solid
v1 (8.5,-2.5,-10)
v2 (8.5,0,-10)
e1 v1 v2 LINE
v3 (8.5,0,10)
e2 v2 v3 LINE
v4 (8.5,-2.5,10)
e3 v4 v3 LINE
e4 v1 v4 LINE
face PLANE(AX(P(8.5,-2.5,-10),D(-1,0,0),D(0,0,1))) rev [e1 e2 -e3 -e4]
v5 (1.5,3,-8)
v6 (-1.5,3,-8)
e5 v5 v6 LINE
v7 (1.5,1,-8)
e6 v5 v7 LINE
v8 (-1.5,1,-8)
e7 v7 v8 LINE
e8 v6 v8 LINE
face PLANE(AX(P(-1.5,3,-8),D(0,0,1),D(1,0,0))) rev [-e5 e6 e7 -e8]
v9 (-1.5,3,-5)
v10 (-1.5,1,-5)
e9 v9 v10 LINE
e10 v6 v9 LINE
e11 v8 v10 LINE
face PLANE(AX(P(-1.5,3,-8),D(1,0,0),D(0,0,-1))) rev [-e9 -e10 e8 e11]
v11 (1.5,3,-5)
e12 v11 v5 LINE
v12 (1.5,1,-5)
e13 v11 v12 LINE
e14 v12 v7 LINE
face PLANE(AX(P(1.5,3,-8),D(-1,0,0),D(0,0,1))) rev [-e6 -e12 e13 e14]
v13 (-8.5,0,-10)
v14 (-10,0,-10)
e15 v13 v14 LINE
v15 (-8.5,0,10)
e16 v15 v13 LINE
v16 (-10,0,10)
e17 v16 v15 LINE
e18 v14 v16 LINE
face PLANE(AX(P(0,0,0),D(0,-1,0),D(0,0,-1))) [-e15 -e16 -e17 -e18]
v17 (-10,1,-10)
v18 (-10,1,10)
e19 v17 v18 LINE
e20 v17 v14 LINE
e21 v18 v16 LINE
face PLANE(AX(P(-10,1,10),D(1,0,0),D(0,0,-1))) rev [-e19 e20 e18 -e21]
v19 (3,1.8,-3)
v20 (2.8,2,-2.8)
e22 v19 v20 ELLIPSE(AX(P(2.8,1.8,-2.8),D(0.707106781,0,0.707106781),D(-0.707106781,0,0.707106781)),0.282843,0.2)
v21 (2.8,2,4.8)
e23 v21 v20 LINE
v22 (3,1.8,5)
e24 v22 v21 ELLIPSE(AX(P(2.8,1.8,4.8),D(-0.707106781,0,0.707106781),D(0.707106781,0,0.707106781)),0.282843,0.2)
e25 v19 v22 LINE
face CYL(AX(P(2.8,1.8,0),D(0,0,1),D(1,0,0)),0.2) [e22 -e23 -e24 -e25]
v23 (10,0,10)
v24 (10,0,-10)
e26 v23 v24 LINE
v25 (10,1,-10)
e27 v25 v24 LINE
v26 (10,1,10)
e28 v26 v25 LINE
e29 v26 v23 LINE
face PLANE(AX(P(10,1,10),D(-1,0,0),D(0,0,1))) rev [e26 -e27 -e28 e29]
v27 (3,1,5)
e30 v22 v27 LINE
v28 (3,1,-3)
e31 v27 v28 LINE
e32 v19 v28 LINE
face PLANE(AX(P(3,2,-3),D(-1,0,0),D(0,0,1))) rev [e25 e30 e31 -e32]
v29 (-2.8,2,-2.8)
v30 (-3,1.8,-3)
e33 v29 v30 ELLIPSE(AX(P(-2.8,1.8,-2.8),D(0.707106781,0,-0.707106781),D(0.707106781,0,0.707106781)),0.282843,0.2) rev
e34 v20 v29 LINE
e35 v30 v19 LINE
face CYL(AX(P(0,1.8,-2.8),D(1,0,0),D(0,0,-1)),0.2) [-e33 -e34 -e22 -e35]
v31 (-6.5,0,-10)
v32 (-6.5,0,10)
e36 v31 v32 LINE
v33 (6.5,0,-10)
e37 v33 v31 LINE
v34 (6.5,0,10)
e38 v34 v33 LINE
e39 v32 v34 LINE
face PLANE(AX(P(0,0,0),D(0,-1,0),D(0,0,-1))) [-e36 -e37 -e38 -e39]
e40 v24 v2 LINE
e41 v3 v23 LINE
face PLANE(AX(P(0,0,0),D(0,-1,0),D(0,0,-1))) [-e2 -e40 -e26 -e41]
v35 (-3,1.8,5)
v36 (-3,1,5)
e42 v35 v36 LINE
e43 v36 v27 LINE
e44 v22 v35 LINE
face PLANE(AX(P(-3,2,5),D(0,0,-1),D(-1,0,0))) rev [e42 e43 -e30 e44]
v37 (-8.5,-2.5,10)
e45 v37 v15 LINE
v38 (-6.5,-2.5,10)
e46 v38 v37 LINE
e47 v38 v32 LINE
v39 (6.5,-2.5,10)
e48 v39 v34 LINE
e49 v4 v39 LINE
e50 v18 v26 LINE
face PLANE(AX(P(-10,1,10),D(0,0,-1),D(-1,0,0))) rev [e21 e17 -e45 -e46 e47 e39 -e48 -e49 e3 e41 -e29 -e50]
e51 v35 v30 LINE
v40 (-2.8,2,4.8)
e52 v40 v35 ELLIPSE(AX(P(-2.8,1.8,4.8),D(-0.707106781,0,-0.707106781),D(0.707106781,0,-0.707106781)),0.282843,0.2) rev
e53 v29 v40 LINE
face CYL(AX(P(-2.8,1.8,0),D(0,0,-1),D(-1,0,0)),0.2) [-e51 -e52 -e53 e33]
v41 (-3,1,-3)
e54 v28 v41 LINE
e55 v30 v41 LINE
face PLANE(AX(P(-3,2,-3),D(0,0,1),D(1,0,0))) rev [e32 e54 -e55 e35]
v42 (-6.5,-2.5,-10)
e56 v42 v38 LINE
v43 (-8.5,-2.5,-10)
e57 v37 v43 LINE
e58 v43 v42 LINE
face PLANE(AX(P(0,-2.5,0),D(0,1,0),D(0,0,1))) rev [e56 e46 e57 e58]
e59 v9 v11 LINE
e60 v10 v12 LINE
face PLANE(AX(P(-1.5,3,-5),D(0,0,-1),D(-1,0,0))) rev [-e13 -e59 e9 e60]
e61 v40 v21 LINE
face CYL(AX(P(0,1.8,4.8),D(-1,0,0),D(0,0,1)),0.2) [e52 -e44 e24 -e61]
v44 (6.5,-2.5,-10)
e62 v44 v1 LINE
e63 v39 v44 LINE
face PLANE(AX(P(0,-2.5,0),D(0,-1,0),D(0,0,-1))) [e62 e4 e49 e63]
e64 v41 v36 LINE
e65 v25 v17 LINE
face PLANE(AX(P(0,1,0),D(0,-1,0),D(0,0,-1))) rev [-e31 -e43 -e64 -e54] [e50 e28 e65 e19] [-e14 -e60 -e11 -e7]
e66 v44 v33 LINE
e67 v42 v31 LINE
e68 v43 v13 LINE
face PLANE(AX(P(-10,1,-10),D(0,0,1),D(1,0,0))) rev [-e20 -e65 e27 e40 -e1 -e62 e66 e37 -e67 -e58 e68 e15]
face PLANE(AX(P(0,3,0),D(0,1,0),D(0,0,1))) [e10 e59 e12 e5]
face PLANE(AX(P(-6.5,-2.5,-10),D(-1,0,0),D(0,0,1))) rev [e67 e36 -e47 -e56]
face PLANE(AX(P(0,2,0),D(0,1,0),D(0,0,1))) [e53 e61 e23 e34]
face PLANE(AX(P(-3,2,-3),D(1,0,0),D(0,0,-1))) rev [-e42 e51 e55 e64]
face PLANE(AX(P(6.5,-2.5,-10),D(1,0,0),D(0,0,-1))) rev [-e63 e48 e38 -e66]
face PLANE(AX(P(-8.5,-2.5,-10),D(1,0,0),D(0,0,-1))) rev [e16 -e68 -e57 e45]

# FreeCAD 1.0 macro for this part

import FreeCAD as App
import Part
import Sketcher
from FreeCAD import Vector


def edges_at(feature, points):
    """Names of the edges that pass closest to the given points."""
    edges = feature.Shape.Edges
    near = lambda p: min(range(len(edges)), key=lambda i: edges[i].distToShape(Part.Vertex(*p))[0])
    return sorted({f"Edge{near(p) + 1}" for p in points})

doc = App.newDocument("Part")
body = doc.addObject("PartDesign::Body", "Body")

sketch1 = body.newObject("Sketcher::SketchObject", "Sketch")
sketch1.AttachmentSupport = (doc.getObject("XZ_Plane"), [""])
sketch1.MapMode = "FlatFace"
sketch1.addGeometry([
    Part.LineSegment(Vector(-10, -10, 0), Vector(-10, 10, 0)),
    Part.LineSegment(Vector(-10, 10, 0), Vector(10, 10, 0)),
    Part.LineSegment(Vector(10, 10, 0), Vector(10, -10, 0)),
    Part.LineSegment(Vector(10, -10, 0), Vector(-10, -10, 0)),
], False)
sketch1.addConstraint([
    Sketcher.Constraint("Coincident", 0, 2, 1, 1),
    Sketcher.Constraint("Coincident", 1, 2, 2, 1),
    Sketcher.Constraint("Coincident", 2, 2, 3, 1),
    Sketcher.Constraint("Coincident", 3, 2, 0, 1),
    Sketcher.Constraint("Vertical", 0),
    Sketcher.Constraint("Horizontal", 1),
    Sketcher.Constraint("Vertical", 2),
    Sketcher.Constraint("Horizontal", 3),
    Sketcher.Constraint("Symmetric", 0, 2, 2, 2, -1, 1),
    Sketcher.Constraint("Equal", 3, 0),
    Sketcher.Constraint("DistanceX", 1, 1, 1, 2, 20.0),
])
pad1 = body.newObject("PartDesign::Pad", "Pad")
pad1.Profile = sketch1
pad1.Length = 1
pad1.Reversed = True

sketch2 = body.newObject("Sketcher::SketchObject", "Sketch001")
sketch2.AttachmentSupport = (doc.getObject("XZ_Plane"), [""])
sketch2.MapMode = "FlatFace"
sketch2.AttachmentOffset = App.Placement(Vector(0, 0, -1), App.Rotation())
sketch2.addGeometry([
    Part.LineSegment(Vector(-3, -3, 0), Vector(-3, 5, 0)),
    Part.LineSegment(Vector(-3, 5, 0), Vector(3, 5, 0)),
    Part.LineSegment(Vector(3, 5, 0), Vector(3, -3, 0)),
    Part.LineSegment(Vector(3, -3, 0), Vector(-3, -3, 0)),
], False)
sketch2.addConstraint([
    Sketcher.Constraint("Coincident", 0, 2, 1, 1),
    Sketcher.Constraint("Coincident", 1, 2, 2, 1),
    Sketcher.Constraint("Coincident", 2, 2, 3, 1),
    Sketcher.Constraint("Coincident", 3, 2, 0, 1),
    Sketcher.Constraint("Vertical", 0),
    Sketcher.Constraint("Horizontal", 1),
    Sketcher.Constraint("Vertical", 2),
    Sketcher.Constraint("Horizontal", 3),
    Sketcher.Constraint("DistanceX", 1, 1, 1, 2, 6.0),
    Sketcher.Constraint("DistanceY", 0, 1, 0, 2, 8.0),
    Sketcher.Constraint("DistanceX", 0, 2, -1, 1, 3.0),
    Sketcher.Constraint("DistanceY", -1, 1, 0, 2, 5.0),
])
pad2 = body.newObject("PartDesign::Pad", "Pad001")
pad2.Profile = sketch2
pad2.Length = 1
pad2.Reversed = True
doc.recompute()

fillet = body.newObject("PartDesign::Fillet", "Fillet")
fillet.Base = (pad2, edges_at(pad2, [
    (3, 2, 1),
    (0, 2, -3),
    (-3, 2, 1),
    (0, 2, 5),
]))
fillet.Radius = 0.2

sketch3 = body.newObject("Sketcher::SketchObject", "Sketch002")
sketch3.AttachmentSupport = (doc.getObject("XZ_Plane"), [""])
sketch3.MapMode = "FlatFace"
sketch3.AttachmentOffset = App.Placement(Vector(0, 0, -1), App.Rotation())
sketch3.addGeometry([
    Part.LineSegment(Vector(-1.5, -8, 0), Vector(-1.5, -5, 0)),
    Part.LineSegment(Vector(-1.5, -5, 0), Vector(1.5, -5, 0)),
    Part.LineSegment(Vector(1.5, -5, 0), Vector(1.5, -8, 0)),
    Part.LineSegment(Vector(1.5, -8, 0), Vector(-1.5, -8, 0)),
], False)
sketch3.addConstraint([
    Sketcher.Constraint("Coincident", 0, 2, 1, 1),
    Sketcher.Constraint("Coincident", 1, 2, 2, 1),
    Sketcher.Constraint("Coincident", 2, 2, 3, 1),
    Sketcher.Constraint("Coincident", 3, 2, 0, 1),
    Sketcher.Constraint("Vertical", 0),
    Sketcher.Constraint("Horizontal", 1),
    Sketcher.Constraint("Vertical", 2),
    Sketcher.Constraint("Horizontal", 3),
    Sketcher.Constraint("Equal", 3, 0),
    Sketcher.Constraint("DistanceX", 1, 1, 1, 2, 3.0),
    Sketcher.Constraint("DistanceY", 0, 2, -1, 1, 5.0),
    Sketcher.Constraint("DistanceX", 0, 2, -1, 1, 1.5),
])
pad3 = body.newObject("PartDesign::Pad", "Pad002")
pad3.Profile = sketch3
pad3.Length = 2
pad3.Reversed = True

sketch4 = body.newObject("Sketcher::SketchObject", "Sketch003")
sketch4.AttachmentSupport = (doc.getObject("XZ_Plane"), [""])
sketch4.MapMode = "FlatFace"
sketch4.addGeometry([
    Part.LineSegment(Vector(-8.5, 10, 0), Vector(-8.5, -10, 0)),
    Part.LineSegment(Vector(-8.5, -10, 0), Vector(-6.5, -10, 0)),
    Part.LineSegment(Vector(-6.5, -10, 0), Vector(-6.5, 10, 0)),
    Part.LineSegment(Vector(-6.5, 10, 0), Vector(-8.5, 10, 0)),
    Part.LineSegment(Vector(6.5, 10, 0), Vector(6.5, -10, 0)),
    Part.LineSegment(Vector(6.5, -10, 0), Vector(8.5, -10, 0)),
    Part.LineSegment(Vector(8.5, -10, 0), Vector(8.5, 10, 0)),
    Part.LineSegment(Vector(8.5, 10, 0), Vector(6.5, 10, 0)),
], False)
sketch4.addConstraint([
    Sketcher.Constraint("Coincident", 0, 2, 1, 1),
    Sketcher.Constraint("Coincident", 1, 2, 2, 1),
    Sketcher.Constraint("Coincident", 2, 2, 3, 1),
    Sketcher.Constraint("Coincident", 3, 2, 0, 1),
    Sketcher.Constraint("Coincident", 4, 2, 5, 1),
    Sketcher.Constraint("Coincident", 5, 2, 6, 1),
    Sketcher.Constraint("Coincident", 6, 2, 7, 1),
    Sketcher.Constraint("Coincident", 7, 2, 4, 1),
    Sketcher.Constraint("Vertical", 0),
    Sketcher.Constraint("Horizontal", 1),
    Sketcher.Constraint("Vertical", 2),
    Sketcher.Constraint("Horizontal", 3),
    Sketcher.Constraint("Vertical", 4),
    Sketcher.Constraint("Horizontal", 5),
    Sketcher.Constraint("Vertical", 6),
    Sketcher.Constraint("Horizontal", 7),
    Sketcher.Constraint("Symmetric", 2, 2, 4, 2, -1, 1),
    Sketcher.Constraint("Symmetric", 0, 2, 6, 2, -1, 1),
    Sketcher.Constraint("Horizontal", 1, 2, 4, 2),
    Sketcher.Constraint("DistanceX", 1, 1, 1, 2, 2.0),
    Sketcher.Constraint("DistanceY", 0, 2, 0, 1, 20.0),
    Sketcher.Constraint("DistanceX", 1, 2, 4, 2, 13.0),
])
pad4 = body.newObject("PartDesign::Pad", "Pad003")
pad4.Profile = sketch4
pad4.Length = 2.5

doc.recompute()
